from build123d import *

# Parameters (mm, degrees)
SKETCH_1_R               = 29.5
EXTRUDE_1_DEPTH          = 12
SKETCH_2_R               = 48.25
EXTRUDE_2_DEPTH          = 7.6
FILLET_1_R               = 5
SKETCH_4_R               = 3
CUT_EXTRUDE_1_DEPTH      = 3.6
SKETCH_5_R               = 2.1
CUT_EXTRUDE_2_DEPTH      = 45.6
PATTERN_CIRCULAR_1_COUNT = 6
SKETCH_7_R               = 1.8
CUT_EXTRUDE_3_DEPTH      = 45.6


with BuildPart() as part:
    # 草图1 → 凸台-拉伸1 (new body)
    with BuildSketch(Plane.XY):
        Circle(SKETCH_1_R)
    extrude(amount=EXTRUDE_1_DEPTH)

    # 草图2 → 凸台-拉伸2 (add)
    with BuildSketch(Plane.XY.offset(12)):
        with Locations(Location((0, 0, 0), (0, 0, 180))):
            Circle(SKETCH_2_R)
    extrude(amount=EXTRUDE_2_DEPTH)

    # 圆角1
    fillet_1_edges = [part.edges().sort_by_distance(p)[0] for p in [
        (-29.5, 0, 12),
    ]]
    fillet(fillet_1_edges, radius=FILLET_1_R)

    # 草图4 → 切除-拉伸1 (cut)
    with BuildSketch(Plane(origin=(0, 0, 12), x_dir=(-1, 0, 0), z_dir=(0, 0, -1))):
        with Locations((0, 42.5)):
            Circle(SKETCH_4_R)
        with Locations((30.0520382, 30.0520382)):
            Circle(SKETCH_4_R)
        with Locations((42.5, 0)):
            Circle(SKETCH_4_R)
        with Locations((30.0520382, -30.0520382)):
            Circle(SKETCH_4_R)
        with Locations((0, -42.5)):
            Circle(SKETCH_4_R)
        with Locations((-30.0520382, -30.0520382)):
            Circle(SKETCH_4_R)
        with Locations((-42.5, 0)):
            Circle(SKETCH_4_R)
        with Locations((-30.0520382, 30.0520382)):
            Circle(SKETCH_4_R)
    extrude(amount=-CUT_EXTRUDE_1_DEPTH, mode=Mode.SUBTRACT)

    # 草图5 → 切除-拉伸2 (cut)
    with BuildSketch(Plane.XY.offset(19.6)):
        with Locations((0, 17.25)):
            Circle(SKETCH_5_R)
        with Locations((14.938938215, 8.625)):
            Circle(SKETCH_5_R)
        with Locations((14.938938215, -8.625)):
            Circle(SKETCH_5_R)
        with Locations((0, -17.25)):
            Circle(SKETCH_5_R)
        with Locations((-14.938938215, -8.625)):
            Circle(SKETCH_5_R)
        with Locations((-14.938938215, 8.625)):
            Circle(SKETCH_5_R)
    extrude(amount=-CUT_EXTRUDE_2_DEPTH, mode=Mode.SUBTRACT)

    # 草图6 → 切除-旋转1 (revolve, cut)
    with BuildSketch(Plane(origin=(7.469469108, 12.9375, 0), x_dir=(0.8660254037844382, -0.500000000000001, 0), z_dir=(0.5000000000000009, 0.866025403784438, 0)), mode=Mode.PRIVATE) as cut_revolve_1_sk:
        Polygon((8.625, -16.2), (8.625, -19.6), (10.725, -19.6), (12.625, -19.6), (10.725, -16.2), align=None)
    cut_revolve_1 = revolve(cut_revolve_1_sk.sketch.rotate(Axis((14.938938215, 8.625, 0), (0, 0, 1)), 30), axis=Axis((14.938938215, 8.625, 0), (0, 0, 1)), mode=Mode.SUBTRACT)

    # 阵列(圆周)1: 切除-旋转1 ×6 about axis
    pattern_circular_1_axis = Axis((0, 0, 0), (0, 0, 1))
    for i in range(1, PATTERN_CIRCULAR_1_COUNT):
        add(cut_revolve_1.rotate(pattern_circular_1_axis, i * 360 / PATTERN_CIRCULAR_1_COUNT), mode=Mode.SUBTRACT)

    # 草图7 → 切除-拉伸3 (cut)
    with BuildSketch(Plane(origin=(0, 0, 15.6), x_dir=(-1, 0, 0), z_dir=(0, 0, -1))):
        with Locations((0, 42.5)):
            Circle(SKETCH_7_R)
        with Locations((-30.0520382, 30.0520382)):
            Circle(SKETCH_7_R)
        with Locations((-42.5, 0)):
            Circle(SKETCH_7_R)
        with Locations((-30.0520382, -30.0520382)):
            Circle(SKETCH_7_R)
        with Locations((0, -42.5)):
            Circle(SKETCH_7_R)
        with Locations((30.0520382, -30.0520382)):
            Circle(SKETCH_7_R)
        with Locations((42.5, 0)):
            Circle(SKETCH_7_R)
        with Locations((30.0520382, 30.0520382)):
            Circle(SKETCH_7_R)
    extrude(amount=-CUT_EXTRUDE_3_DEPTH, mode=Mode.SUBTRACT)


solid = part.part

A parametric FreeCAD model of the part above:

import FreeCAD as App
import Part
import Sketcher
from FreeCAD import Vector


def edges_at(feature, points):
    """Names of the edges that pass closest to the given points."""
    edges = feature.Shape.Edges
    near = lambda p: min(range(len(edges)), key=lambda i: edges[i].distToShape(Part.Vertex(*p))[0])
    return sorted({f"Edge{near(p) + 1}" for p in points})

doc = App.newDocument("Part")
body = doc.addObject("PartDesign::Body", "Body")

# Sketch on XY plane
sketch1 = body.newObject("Sketcher::SketchObject", "Sketch")
sketch1.AttachmentSupport = (doc.getObject("XY_Plane"), [""])
sketch1.MapMode = "FlatFace"
sketch1.addGeometry(Part.Circle(Vector(0, 0, 0), Vector(0, 0, 1), 30), False)
sketch1.addConstraint([
    Sketcher.Constraint("Coincident", 0, 3, -1, 1),
    Sketcher.Constraint("Diameter", 0, 59.0),
])
pad1 = body.newObject("PartDesign::Pad", "Pad")
pad1.Profile = sketch1
pad1.Length = 12

# Sketch on XY plane
sketch2 = body.newObject("Sketcher::SketchObject", "Sketch001")
sketch2.AttachmentSupport = (doc.getObject("XY_Plane"), [""])
sketch2.MapMode = "FlatFace"
sketch2.AttachmentOffset = App.Placement(Vector(0, 0, 12), App.Rotation())
sketch2.addGeometry(Part.Circle(Vector(0, 0, 0), Vector(0, 0, 1), 48), False)
sketch2.addConstraint([
    Sketcher.Constraint("Coincident", 0, 3, -1, 1),
    Sketcher.Constraint("Diameter", 0, 96.5),
])
pad2 = body.newObject("PartDesign::Pad", "Pad001")
pad2.Profile = sketch2
pad2.Length = 7.6
doc.recompute()

fillet = body.newObject("PartDesign::Fillet", "Fillet")
fillet.Base = (pad2, edges_at(pad2, [(-29.5, 0, 12)]))
fillet.Radius = 5

# Sketch on XY plane
sketch3 = body.newObject("Sketcher::SketchObject", "Sketch002")
sketch3.AttachmentSupport = (doc.getObject("XY_Plane"), [""])
sketch3.MapMode = "FlatFace"
sketch3.AttachmentOffset = App.Placement(Vector(0, 0, 12), App.Rotation())
sketch3.addGeometry([
    Part.Circle(Vector(0, 42.5, 0), Vector(0, 0, 1), 3),  # 0
    Part.Circle(Vector(-30.1, 30.1, 0), Vector(0, 0, 1), 3),  # 1
    Part.Circle(Vector(-42.5, 0, 0), Vector(0, 0, 1), 3),  # 2
    Part.Circle(Vector(-30.1, -30.1, 0), Vector(0, 0, 1), 3),  # 3
    Part.Circle(Vector(0, -42.5, 0), Vector(0, 0, 1), 3),  # 4
    Part.Circle(Vector(30.1, -30.1, 0), Vector(0, 0, 1), 3),  # 5
    Part.Circle(Vector(42.5, 0, 0), Vector(0, 0, 1), 3),  # 6
    Part.Circle(Vector(30.1, 30.1, 0), Vector(0, 0, 1), 3),  # 7
], False)
sketch3.addConstraint([
    Sketcher.Constraint("Equal", 0, 1),
    Sketcher.Constraint("Equal", 1, 2),
    Sketcher.Constraint("Equal", 2, 3),
    Sketcher.Constraint("Equal", 3, 4),
    Sketcher.Constraint("Equal", 4, 5),
    Sketcher.Constraint("Equal", 5, 6),
    Sketcher.Constraint("Equal", 6, 7),
    Sketcher.Constraint("Symmetric", 0, 3, 4, 3, -1, 1),
    Sketcher.Constraint("Symmetric", 1, 3, 5, 3, -1, 1),
    Sketcher.Constraint("Symmetric", 2, 3, 6, 3, -1, 1),
    Sketcher.Constraint("Symmetric", 3, 3, 7, 3, -1, 1),
    Sketcher.Constraint("Symmetric", 3, 3, 5, 3, -2),
    Sketcher.Constraint("PointOnObject", 0, 3, -2),
    Sketcher.Constraint("PointOnObject", 2, 3, -1),
    Sketcher.Constraint("Diameter", 0, 6.0),
    Sketcher.Constraint("DistanceY", 4, 3, 0, 3, 85.0),
    Sketcher.Constraint("DistanceX", 2, 3, -1, 1, 42.5),
    Sketcher.Constraint("DistanceX", 1, 3, -1, 1, 30.052038),
    Sketcher.Constraint("DistanceY", -1, 1, 1, 3, 30.052038),
])
pocket1 = body.newObject("PartDesign::Pocket", "Pocket")
pocket1.Profile = sketch3
pocket1.Length = 3.6
pocket1.Reversed = True

# Sketch on XY plane
sketch4 = body.newObject("Sketcher::SketchObject", "Sketch003")
sketch4.AttachmentSupport = (doc.getObject("XY_Plane"), [""])
sketch4.MapMode = "FlatFace"
sketch4.AttachmentOffset = App.Placement(Vector(0, 0, 19.6), App.Rotation())
sketch4.addGeometry([
    Part.Circle(Vector(0, 17.2, 0), Vector(0, 0, 1), 2.1),  # 0
    Part.Circle(Vector(14.9, 8.6, 0), Vector(0, 0, 1), 2.1),  # 1
    Part.Circle(Vector(14.9, -8.6, 0), Vector(0, 0, 1), 2.1),  # 2
    Part.Circle(Vector(0, -17.2, 0), Vector(0, 0, 1), 2.1),  # 3
    Part.Circle(Vector(-14.9, -8.6, 0), Vector(0, 0, 1), 2.1),  # 4
    Part.Circle(Vector(-14.9, 8.6, 0), Vector(0, 0, 1), 2.1),  # 5
], False)
sketch4.addConstraint([
    Sketcher.Constraint("Equal", 0, 1),
    Sketcher.Constraint("Equal", 1, 2),
    Sketcher.Constraint("Equal", 2, 3),
    Sketcher.Constraint("Equal", 3, 4),
    Sketcher.Constraint("Equal", 4, 5),
    Sketcher.Constraint("Symmetric", 0, 3, 3, 3, -1, 1),
    Sketcher.Constraint("Symmetric", 1, 3, 4, 3, -1, 1),
    Sketcher.Constraint("Symmetric", 2, 3, 5, 3, -1, 1),
    Sketcher.Constraint("Symmetric", 2, 3, 4, 3, -2),
    Sketcher.Constraint("PointOnObject", 0, 3, -2),
    Sketcher.Constraint("Diameter", 0, 4.2),
    Sketcher.Constraint("DistanceY", 3, 3, 0, 3, 34.5),
    Sketcher.Constraint("DistanceY", 2, 3, 1, 3, 17.25),
    Sketcher.Constraint("DistanceX", -1, 1, 1, 3, 14.938938),
])
pocket2 = body.newObject("PartDesign::Pocket", "Pocket001")
pocket2.Profile = sketch4
pocket2.Length = 45.6

# Sketch on an angled plane
sketch5 = body.newObject("Sketcher::SketchObject", "Sketch004")
sketch5.Placement = App.Placement(Vector(7.469469, 12.9375, 0), App.Rotation(Vector(0.866025404, -0.5, 0), Vector(0, 0, -1), Vector(0.5, 0.866025404, 0), "ZXY"))
sketch5.addGeometry([
    Part.LineSegment(Vector(8.6, -16.2, 0), Vector(8.6, -19.6, 0)),
    Part.LineSegment(Vector(8.6, -19.6, 0), Vector(12.6, -19.6, 0)),
    Part.LineSegment(Vector(12.6, -19.6, 0), Vector(10.7, -16.2, 0)),
    Part.LineSegment(Vector(10.7, -16.2, 0), Vector(8.6, -16.2, 0)),
], False)
sketch5.addGeometry(Part.LineSegment(Vector(8.6, -16.2, 0), Vector(8.6, -19.6, 0)), True)  # axis
sketch5.addConstraint([
    Sketcher.Constraint("Coincident", 0, 2, 1, 1),
    Sketcher.Constraint("Coincident", 1, 2, 2, 1),
    Sketcher.Constraint("Coincident", 2, 2, 3, 1),
    Sketcher.Constraint("Coincident", 3, 2, 0, 1),
    Sketcher.Constraint("Vertical", 0),
    Sketcher.Constraint("Horizontal", 1),
    Sketcher.Constraint("Horizontal", 3),
    Sketcher.Constraint("Vertical", 4),
    Sketcher.Constraint("Coincident", 4, 1, 3, 2),
    Sketcher.Constraint("Horizontal", 1, 2, 4, 2),
    Sketcher.Constraint("DistanceX", 1, 1, 1, 2, 4.0),
    Sketcher.Constraint("DistanceX", 3, 2, 3, 1, 2.1),
    Sketcher.Constraint("DistanceY", 0, 2, 0, 1, 3.4),
    Sketcher.Constraint("DistanceY", 0, 2, -1, 1, 19.6),
    Sketcher.Constraint("DistanceX", -1, 1, 0, 2, 8.625),
])
groove = body.newObject("PartDesign::Groove", "Groove")
groove.Profile = sketch5
groove.ReferenceAxis = (sketch5, ["Axis0"])
groove.Angle = 360
doc.recompute()

polarpattern = body.newObject("PartDesign::PolarPattern", "PolarPattern")
polarpattern.Originals = [groove]
polarpattern.Axis = (doc.getObject("Z_Axis"), [""])
polarpattern.Angle = 360
polarpattern.Occurrences = 6
body.Tip = polarpattern

# Sketch on XY plane
sketch6 = body.newObject("Sketcher::SketchObject", "Sketch005")
sketch6.AttachmentSupport = (doc.getObject("XY_Plane"), [""])
sketch6.MapMode = "FlatFace"
sketch6.AttachmentOffset = App.Placement(Vector(0, 0, 15.6), App.Rotation())
sketch6.addGeometry([
    Part.Circle(Vector(0, 42.5, 0), Vector(0, 0, 1), 1.8),  # 0
    Part.Circle(Vector(30.1, 30.1, 0), Vector(0, 0, 1), 1.8),  # 1
    Part.Circle(Vector(42.5, 0, 0), Vector(0, 0, 1), 1.8),  # 2
    Part.Circle(Vector(30.1, -30.1, 0), Vector(0, 0, 1), 1.8),  # 3
    Part.Circle(Vector(0, -42.5, 0), Vector(0, 0, 1), 1.8),  # 4
    Part.Circle(Vector(-30.1, -30.1, 0), Vector(0, 0, 1), 1.8),  # 5
    Part.Circle(Vector(-42.5, 0, 0), Vector(0, 0, 1), 1.8),  # 6
    Part.Circle(Vector(-30.1, 30.1, 0), Vector(0, 0, 1), 1.8),  # 7
], False)
sketch6.addConstraint([
    Sketcher.Constraint("Equal", 0, 1),
    Sketcher.Constraint("Equal", 1, 2),
    Sketcher.Constraint("Equal", 2, 3),
    Sketcher.Constraint("Equal", 3, 4),
    Sketcher.Constraint("Equal", 4, 5),
    Sketcher.Constraint("Equal", 5, 6),
    Sketcher.Constraint("Equal", 6, 7),
    Sketcher.Constraint("Symmetric", 0, 3, 4, 3, -1, 1),
    Sketcher.Constraint("Symmetric", 1, 3, 5, 3, -1, 1),
    Sketcher.Constraint("Symmetric", 2, 3, 6, 3, -1, 1),
    Sketcher.Constraint("Symmetric", 3, 3, 7, 3, -1, 1),
    Sketcher.Constraint("Symmetric", 3, 3, 5, 3, -2),
    Sketcher.Constraint("PointOnObject", 0, 3, -2),
    Sketcher.Constraint("PointOnObject", 2, 3, -1),
    Sketcher.Constraint("Diameter", 0, 3.6),
    Sketcher.Constraint("DistanceY", 4, 3, 0, 3, 85.0),
    Sketcher.Constraint("DistanceX", -1, 1, 2, 3, 42.5),
    Sketcher.Constraint("DistanceX", -1, 1, 1, 3, 30.052038),
    Sketcher.Constraint("DistanceY", -1, 1, 1, 3, 30.052038),
])
pocket3 = body.newObject("PartDesign::Pocket", "Pocket002")
pocket3.Profile = sketch6
pocket3.Length = 45.6
pocket3.Reversed = True

doc.recompute()
